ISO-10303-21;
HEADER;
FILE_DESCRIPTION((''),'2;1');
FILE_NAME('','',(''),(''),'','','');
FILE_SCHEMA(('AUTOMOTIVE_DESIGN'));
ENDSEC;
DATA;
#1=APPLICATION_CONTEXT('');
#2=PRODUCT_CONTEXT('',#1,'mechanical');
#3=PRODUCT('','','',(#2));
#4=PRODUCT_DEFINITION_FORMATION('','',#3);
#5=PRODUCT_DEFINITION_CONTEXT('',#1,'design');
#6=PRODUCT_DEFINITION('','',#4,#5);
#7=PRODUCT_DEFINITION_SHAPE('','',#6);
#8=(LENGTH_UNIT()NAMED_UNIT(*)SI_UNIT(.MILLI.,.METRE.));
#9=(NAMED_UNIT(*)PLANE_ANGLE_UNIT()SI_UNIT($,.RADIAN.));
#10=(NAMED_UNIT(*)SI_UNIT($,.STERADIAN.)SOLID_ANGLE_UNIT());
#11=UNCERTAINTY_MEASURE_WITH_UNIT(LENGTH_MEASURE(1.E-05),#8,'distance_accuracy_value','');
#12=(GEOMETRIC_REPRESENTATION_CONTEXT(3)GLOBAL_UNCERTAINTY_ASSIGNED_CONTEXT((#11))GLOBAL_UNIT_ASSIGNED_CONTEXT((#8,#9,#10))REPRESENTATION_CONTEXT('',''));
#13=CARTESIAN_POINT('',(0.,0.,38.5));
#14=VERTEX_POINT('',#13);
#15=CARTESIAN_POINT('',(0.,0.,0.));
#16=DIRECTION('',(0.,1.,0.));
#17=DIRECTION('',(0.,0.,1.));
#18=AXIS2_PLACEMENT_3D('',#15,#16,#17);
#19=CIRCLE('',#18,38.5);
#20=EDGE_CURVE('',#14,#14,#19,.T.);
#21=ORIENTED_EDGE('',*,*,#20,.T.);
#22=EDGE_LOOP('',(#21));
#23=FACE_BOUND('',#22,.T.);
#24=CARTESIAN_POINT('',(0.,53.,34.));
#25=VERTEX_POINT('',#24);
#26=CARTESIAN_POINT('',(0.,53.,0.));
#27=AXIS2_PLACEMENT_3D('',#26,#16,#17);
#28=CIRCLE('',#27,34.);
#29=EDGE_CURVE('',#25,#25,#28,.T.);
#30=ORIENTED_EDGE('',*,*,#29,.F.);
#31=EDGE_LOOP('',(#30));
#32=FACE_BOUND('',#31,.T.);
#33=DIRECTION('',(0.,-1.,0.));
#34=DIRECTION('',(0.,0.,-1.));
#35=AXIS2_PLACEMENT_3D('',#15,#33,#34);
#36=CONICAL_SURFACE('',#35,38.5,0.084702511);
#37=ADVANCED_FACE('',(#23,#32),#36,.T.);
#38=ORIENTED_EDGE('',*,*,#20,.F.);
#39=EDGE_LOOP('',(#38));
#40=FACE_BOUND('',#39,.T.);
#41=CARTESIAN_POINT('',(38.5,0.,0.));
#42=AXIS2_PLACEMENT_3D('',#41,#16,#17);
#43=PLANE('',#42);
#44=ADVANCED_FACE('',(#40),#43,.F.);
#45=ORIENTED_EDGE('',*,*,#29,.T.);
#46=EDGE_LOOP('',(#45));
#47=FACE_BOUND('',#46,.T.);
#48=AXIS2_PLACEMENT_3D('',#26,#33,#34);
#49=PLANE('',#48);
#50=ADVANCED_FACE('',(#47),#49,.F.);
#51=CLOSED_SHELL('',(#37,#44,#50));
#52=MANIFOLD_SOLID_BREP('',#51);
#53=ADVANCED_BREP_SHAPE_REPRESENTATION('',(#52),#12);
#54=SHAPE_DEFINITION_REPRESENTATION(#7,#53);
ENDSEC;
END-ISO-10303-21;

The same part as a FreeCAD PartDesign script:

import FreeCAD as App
import Part
import Sketcher

V = App.Vector

doc = App.newDocument("Part")
body = doc.addObject("PartDesign::Body", "Body")

sketch1 = body.newObject("Sketcher::SketchObject", "Sketch")
sketch1.AttachmentSupport = (doc.getObject("XY_Plane"), [""])
sketch1.MapMode = "FlatFace"
sketch1.addGeometry(Part.LineSegment(V(34, 53, 0), V(0, 53, 0)), False)
sketch1.addGeometry(Part.LineSegment(V(0, 53, 0), V(0, 0, 0)), False)
sketch1.addGeometry(Part.LineSegment(V(0, 0, 0), V(38, 0, 0)), False)
sketch1.addGeometry(Part.LineSegment(V(38, 0, 0), V(34, 53, 0)), False)
sketch1.addConstraint(Sketcher.Constraint("Coincident", 0, 2, 1, 1))
sketch1.addConstraint(Sketcher.Constraint("Coincident", 1, 2, 2, 1))
sketch1.addConstraint(Sketcher.Constraint("Coincident", 2, 2, 3, 1))
sketch1.addConstraint(Sketcher.Constraint("Coincident", 3, 2, 0, 1))
sketch1.addConstraint(Sketcher.Constraint("Horizontal", 0))
sketch1.addConstraint(Sketcher.Constraint("Vertical", 1))
sketch1.addConstraint(Sketcher.Constraint("Horizontal", 2))
sketch1.addConstraint(Sketcher.Constraint("Coincident", 1, 2, -1, 1))
sketch1.addConstraint(Sketcher.Constraint("DistanceX", 0, 2, 0, 1, 34.0))
sketch1.addConstraint(Sketcher.Constraint("DistanceY", 1, 2, 1, 1, 53.0))
sketch1.addConstraint(Sketcher.Constraint("DistanceX", 2, 1, 2, 2, 38.5))
revolution = body.newObject("PartDesign::Revolution", "Revolution")
revolution.Profile = sketch1
revolution.ReferenceAxis = (sketch1, ["V_Axis"])
revolution.Angle = 360

doc.recompute()
